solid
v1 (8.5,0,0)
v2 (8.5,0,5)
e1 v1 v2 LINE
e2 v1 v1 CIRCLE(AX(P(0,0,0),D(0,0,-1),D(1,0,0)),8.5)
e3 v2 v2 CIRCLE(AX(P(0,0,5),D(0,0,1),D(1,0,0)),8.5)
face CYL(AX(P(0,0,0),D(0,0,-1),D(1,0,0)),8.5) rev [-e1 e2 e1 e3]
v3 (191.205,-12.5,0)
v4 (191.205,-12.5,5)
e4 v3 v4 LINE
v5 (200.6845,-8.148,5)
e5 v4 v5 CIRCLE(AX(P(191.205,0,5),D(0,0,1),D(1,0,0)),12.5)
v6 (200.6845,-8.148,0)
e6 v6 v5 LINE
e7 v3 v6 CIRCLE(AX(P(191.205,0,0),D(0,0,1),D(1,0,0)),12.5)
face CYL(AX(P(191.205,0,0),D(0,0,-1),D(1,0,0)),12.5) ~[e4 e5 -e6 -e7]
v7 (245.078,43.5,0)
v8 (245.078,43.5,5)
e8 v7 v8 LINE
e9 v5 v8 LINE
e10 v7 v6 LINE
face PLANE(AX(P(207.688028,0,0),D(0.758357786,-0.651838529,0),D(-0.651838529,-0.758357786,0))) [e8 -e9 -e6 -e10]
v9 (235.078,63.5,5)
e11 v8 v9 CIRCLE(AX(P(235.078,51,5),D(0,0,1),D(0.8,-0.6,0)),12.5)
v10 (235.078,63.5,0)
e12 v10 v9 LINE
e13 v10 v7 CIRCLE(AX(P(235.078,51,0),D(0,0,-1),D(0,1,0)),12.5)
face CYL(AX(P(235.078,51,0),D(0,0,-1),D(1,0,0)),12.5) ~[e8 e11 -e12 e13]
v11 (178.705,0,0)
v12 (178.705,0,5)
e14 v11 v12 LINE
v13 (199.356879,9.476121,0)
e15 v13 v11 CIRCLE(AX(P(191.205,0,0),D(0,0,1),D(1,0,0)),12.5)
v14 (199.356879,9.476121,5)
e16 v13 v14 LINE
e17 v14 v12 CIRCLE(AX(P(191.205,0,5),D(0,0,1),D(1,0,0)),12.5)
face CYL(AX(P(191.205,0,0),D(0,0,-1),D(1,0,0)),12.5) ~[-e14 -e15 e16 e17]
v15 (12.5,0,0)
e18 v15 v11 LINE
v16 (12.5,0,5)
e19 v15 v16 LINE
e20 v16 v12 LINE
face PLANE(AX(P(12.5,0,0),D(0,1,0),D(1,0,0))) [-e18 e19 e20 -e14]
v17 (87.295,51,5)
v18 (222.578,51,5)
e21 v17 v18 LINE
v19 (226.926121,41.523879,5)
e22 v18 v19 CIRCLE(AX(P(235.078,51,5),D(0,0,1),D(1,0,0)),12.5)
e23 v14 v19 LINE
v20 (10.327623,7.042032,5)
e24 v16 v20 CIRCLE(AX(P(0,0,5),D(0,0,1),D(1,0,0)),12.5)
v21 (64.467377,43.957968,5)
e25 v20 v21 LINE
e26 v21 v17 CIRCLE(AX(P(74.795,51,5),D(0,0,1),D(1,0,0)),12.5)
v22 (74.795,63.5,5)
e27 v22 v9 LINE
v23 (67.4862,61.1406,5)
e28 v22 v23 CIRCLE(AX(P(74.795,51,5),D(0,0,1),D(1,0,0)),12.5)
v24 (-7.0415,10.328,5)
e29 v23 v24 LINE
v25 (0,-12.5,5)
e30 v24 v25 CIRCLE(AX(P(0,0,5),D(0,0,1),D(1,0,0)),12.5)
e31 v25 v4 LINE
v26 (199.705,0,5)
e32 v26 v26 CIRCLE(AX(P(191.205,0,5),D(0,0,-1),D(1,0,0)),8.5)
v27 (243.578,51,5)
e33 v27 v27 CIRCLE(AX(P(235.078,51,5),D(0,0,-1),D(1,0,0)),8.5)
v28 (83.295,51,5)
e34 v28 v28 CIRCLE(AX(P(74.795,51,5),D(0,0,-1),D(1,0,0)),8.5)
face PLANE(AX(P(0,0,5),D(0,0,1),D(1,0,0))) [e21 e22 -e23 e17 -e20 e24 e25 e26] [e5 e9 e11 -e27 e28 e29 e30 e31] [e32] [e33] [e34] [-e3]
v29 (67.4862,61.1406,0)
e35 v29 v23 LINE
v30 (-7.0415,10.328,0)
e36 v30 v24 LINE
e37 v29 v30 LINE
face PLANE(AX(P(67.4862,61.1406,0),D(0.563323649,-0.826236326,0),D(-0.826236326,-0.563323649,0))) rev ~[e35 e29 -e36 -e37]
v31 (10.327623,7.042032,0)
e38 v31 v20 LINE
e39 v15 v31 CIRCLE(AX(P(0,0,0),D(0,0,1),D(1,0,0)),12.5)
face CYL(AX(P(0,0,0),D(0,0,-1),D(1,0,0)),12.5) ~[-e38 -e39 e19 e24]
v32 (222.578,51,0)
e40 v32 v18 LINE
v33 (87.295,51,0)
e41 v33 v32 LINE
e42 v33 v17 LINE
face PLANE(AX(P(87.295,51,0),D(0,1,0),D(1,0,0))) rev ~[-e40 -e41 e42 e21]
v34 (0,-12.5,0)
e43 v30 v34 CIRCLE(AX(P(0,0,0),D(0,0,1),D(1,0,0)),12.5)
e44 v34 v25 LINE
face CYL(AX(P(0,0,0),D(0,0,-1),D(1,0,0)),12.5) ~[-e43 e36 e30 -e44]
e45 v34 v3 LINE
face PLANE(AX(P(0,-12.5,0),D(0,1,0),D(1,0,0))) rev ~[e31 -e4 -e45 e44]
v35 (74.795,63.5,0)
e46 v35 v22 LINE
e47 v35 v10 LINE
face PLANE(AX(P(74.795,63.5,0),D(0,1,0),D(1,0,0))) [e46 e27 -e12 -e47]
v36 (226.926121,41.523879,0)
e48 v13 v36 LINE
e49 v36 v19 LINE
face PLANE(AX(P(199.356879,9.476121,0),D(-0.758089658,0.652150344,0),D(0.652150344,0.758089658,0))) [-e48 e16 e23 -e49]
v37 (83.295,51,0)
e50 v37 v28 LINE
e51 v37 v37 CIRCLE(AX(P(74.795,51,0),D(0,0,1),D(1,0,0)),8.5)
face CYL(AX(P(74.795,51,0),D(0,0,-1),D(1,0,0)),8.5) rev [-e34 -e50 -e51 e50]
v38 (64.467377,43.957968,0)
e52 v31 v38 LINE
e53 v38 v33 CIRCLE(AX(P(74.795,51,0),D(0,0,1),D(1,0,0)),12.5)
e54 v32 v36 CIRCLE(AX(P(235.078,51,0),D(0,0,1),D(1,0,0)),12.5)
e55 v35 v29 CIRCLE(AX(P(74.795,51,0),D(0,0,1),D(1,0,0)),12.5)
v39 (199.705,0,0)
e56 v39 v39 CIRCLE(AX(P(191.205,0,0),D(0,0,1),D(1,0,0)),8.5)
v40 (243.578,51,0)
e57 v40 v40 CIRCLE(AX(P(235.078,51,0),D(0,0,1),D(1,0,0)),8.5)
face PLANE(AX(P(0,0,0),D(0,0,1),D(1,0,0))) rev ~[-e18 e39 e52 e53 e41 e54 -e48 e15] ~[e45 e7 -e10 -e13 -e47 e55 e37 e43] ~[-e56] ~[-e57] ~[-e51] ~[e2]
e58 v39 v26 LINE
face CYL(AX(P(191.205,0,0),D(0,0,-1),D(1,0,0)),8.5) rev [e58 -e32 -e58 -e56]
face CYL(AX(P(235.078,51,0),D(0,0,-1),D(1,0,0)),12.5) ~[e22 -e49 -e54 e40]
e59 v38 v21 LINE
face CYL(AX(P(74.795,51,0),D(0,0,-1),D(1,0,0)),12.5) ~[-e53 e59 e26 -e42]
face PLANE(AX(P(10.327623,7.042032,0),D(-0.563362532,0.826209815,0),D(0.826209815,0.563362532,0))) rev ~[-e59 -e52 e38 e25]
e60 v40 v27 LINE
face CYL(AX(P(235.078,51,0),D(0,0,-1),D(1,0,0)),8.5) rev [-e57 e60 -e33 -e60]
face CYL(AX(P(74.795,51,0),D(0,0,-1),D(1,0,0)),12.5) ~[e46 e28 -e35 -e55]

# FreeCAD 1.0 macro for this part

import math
import FreeCAD as App
import Part
import Sketcher

V = App.Vector

doc = App.newDocument("Part")
body = doc.addObject("PartDesign::Body", "Body")

# Sketch on XY plane
sketch1 = body.newObject("Sketcher::SketchObject", "Sketch")
sketch1.AttachmentSupport = (doc.getObject("XY_Plane"), [""])
sketch1.MapMode = "FlatFace"
sketch1.addGeometry([
    Part.ArcOfCircle(Part.Circle(V(0, 0, 0), V(0, 0, 1), 12.5), math.radians(124.285672), math.radians(270)),  # 0
    Part.LineSegment(V(0, -12.5, 0), V(191.205, -12.5, 0)),  # 1
    Part.ArcOfCircle(Part.Circle(V(191.205, 0, 0), V(0, 0, 1), 12.5), math.radians(-90), math.radians(-40.680344)),  # 2
    Part.LineSegment(V(200.6845, -8.148, 0), V(245.078, 43.5, 0)),  # 3
    Part.ArcOfCircle(Part.Circle(V(235.078, 51, 0), V(0, 0, 1), 12.5), math.radians(-36.869898), math.radians(90)),  # 4
    Part.LineSegment(V(235.078, 63.5, 0), V(74.795, 63.5, 0)),  # 5
    Part.ArcOfCircle(Part.Circle(V(74.795, 51, 0), V(0, 0, 1), 12.5), math.radians(90), math.radians(125.782039)),  # 6
    Part.LineSegment(V(67.4862, 61.1406, 0), V(-7.0415, 10.328, 0)),  # 7
    Part.Circle(V(0, 0, 0), V(0, 0, 1), 8.5),  # 8
    Part.ArcOfCircle(Part.Circle(V(0, 0, 0), V(0, 0, 1), 12.5), math.radians(0), math.radians(34.28866)),  # 9
    Part.LineSegment(V(10.327623, 7.042032, 0), V(64.467377, 43.957968, 0)),  # 10
    Part.ArcOfCircle(Part.Circle(V(74.795, 51, 0), V(0, 0, 1), 12.5), math.radians(-145.71134), math.radians(0)),  # 11
    Part.LineSegment(V(87.295, 51, 0), V(222.578, 51, 0)),  # 12
    Part.ArcOfCircle(Part.Circle(V(235.078, 51, 0), V(0, 0, 1), 12.5), math.radians(180), math.radians(229.296075)),  # 13
    Part.LineSegment(V(226.926121, 41.523879, 0), V(199.356879, 9.476121, 0)),  # 14
    Part.ArcOfCircle(Part.Circle(V(191.205, 0, 0), V(0, 0, 1), 12.5), math.radians(49.296075), math.radians(180)),  # 15
    Part.LineSegment(V(178.705, 0, 0), V(12.5, 0, 0)),  # 16
    Part.Circle(V(191.205, 0, 0), V(0, 0, 1), 8.5),  # 17
    Part.Circle(V(74.795, 51, 0), V(0, 0, 1), 8.5),  # 18
    Part.Circle(V(235.078, 51, 0), V(0, 0, 1), 8.5),  # 19
], False)
sketch1.addConstraint([
    Sketcher.Constraint("Coincident", 0, 2, 1, 1),
    Sketcher.Constraint("Coincident", 1, 2, 2, 1),
    Sketcher.Constraint("Coincident", 2, 2, 3, 1),
    Sketcher.Constraint("Coincident", 3, 2, 4, 1),
    Sketcher.Constraint("Coincident", 4, 2, 5, 1),
    Sketcher.Constraint("Coincident", 5, 2, 6, 1),
    Sketcher.Constraint("Coincident", 6, 2, 7, 1),
    Sketcher.Constraint("Coincident", 7, 2, 0, 1),
    Sketcher.Constraint("Coincident", 9, 2, 10, 1),
    Sketcher.Constraint("Coincident", 10, 2, 11, 1),
    Sketcher.Constraint("Coincident", 11, 2, 12, 1),
    Sketcher.Constraint("Coincident", 12, 2, 13, 1),
    Sketcher.Constraint("Coincident", 13, 2, 14, 1),
    Sketcher.Constraint("Coincident", 14, 2, 15, 1),
    Sketcher.Constraint("Coincident", 15, 2, 16, 1),
    Sketcher.Constraint("Coincident", 16, 2, 9, 1),
    Sketcher.Constraint("Horizontal", 1),
    Sketcher.Constraint("Horizontal", 5),
    Sketcher.Constraint("Horizontal", 12),
    Sketcher.Constraint("Horizontal", 16),
    Sketcher.Constraint("Coincident", 0, 3, -1, 1),
    Sketcher.Constraint("Coincident", 8, 3, -1, 1),
    Sketcher.Constraint("Coincident", 9, 3, -1, 1),
    Sketcher.Constraint("Coincident", 11, 3, 6, 3),
    Sketcher.Constraint("Coincident", 13, 3, 4, 3),
    Sketcher.Constraint("Coincident", 15, 3, 2, 3),
    Sketcher.Constraint("Coincident", 17, 3, 2, 3),
    Sketcher.Constraint("Coincident", 18, 3, 6, 3),
    Sketcher.Constraint("Coincident", 19, 3, 4, 3),
    Sketcher.Constraint("PointOnObject", 2, 3, -1),
    Sketcher.Constraint("PointOnObject", 0, 2, -2),
    Sketcher.Constraint("PointOnObject", 15, 2, -1),
    Sketcher.Constraint("Diameter", 8, 17.0),
    Sketcher.Constraint("Diameter", 17, 17.0),
    Sketcher.Constraint("Diameter", 18, 17.0),
    Sketcher.Constraint("Diameter", 19, 17.0),
    Sketcher.Constraint("Radius", 0, 12.5),
    Sketcher.Constraint("Radius", 4, 12.5),
    Sketcher.Constraint("Radius", 6, 12.5),
    Sketcher.Constraint("Radius", 9, 12.5),
    Sketcher.Constraint("Radius", 11, 12.5),
    Sketcher.Constraint("Radius", 13, 12.5),
    Sketcher.Constraint("Radius", 15, 12.5),
    Sketcher.Constraint("DistanceY", -1, 1, 4, 3, 51.0),
    Sketcher.Constraint("DistanceY", -1, 1, 11, 2, 51.0),
    Sketcher.Constraint("DistanceX", 1, 1, 1, 2, 191.205),
    Sketcher.Constraint("DistanceX", 5, 2, 5, 1, 160.283),
    Sketcher.Constraint("DistanceX", -1, 1, 2, 3, 191.205),
    Sketcher.Constraint("DistanceX", -1, 1, 6, 3, 74.795),
    Sketcher.Constraint("DistanceX", -1, 1, 5, 2, 74.795),
    Sketcher.Constraint("DistanceX", 2, 3, 4, 3, 43.873),
    Sketcher.Constraint("DistanceX", 4, 3, 3, 2, 10.0),
    Sketcher.Constraint("Distance", 3, 68.105),
    Sketcher.Constraint("DistanceY", -1, 1, 7, 2, 10.328),
    Sketcher.Constraint("DistanceY", -1, 1, 9, 2, 7.042),
    Sketcher.Constraint("DistanceY", -1, 1, 10, 2, 43.958),
    Sketcher.Constraint("DistanceY", 2, 2, 14, 2, 17.624),
    Sketcher.Constraint("Distance", 7, 90.2014),
    Sketcher.Constraint("DistanceX", -1, 1, 13, 2, 226.9261),
])
pad1 = body.newObject("PartDesign::Pad", "Pad")
pad1.Profile = sketch1
pad1.Length = 5

doc.recompute()
